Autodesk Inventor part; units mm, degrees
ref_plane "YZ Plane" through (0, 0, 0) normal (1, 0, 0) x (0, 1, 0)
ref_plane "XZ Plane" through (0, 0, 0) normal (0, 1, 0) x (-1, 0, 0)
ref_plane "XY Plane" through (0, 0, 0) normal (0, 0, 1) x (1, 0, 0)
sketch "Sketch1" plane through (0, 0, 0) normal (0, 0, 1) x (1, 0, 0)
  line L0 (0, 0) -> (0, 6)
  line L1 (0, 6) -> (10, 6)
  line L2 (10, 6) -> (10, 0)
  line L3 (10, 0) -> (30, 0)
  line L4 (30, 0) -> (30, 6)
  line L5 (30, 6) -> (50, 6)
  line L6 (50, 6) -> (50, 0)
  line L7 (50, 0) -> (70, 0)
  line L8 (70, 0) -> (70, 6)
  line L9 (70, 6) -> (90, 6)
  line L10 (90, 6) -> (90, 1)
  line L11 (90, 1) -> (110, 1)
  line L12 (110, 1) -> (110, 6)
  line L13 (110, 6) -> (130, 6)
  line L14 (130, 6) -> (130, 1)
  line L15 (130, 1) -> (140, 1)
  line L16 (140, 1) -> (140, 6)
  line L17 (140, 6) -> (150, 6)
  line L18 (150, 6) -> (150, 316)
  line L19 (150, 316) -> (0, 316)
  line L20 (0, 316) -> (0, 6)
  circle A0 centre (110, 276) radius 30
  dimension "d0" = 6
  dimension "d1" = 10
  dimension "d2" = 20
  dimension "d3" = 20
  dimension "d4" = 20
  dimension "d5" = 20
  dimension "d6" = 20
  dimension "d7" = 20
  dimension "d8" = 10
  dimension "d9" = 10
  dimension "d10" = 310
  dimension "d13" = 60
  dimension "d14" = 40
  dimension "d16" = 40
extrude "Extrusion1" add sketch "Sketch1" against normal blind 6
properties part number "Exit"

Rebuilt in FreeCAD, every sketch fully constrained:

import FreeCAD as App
import Part
import Sketcher
Q = App.Units.Quantity


def add_polygon(sketch, points):
    """Adds a closed chain of lines whose ends are joined by coincident constraints."""
    first, n = sketch.GeometryCount, len(points)
    for a, b in zip(points, points[1:] + points[:1]):
        sketch.addGeometry(Part.LineSegment(App.Vector(*a, 0), App.Vector(*b, 0)), False)
    for i in range(n):
        sketch.addConstraint(Sketcher.Constraint("Coincident", first + i, 2, first + (i + 1) % n, 1))

doc = App.newDocument("Part")
body = doc.addObject("PartDesign::Body", "Body")

# Sketch on XY plane
sketch1 = doc.addObject("Sketcher::SketchObject", "Sketch")
body.addObject(sketch1)
sketch1.AttachmentSupport = (doc.XY_Plane, [""])
sketch1.MapMode = "FlatFace"
add_polygon(sketch1, [(0, 316), (0, 6), (10, 6), (10, 0), (30, 0), (30, 6), (50, 6), (50, 0), (70, 0), (70, 6), (90, 6), (90, 1), (110, 1), (110, 6), (130, 6), (130, 1), (140, 1), (140, 6), (150, 6), (150, 316)])  # lines 0-19
sketch1.addGeometry(Part.Circle(App.Vector(110, 276, 0), App.Vector(0, 0, 1), 30), False)  # 20
sketch1.addConstraint(Sketcher.Constraint("Vertical", 0))
sketch1.addConstraint(Sketcher.Constraint("Horizontal", 1))
sketch1.addConstraint(Sketcher.Constraint("Vertical", 2))
sketch1.addConstraint(Sketcher.Constraint("Horizontal", 3))
sketch1.addConstraint(Sketcher.Constraint("Vertical", 4))
sketch1.addConstraint(Sketcher.Constraint("Horizontal", 5))
sketch1.addConstraint(Sketcher.Constraint("Vertical", 6))
sketch1.addConstraint(Sketcher.Constraint("Horizontal", 7))
sketch1.addConstraint(Sketcher.Constraint("Vertical", 8))
sketch1.addConstraint(Sketcher.Constraint("Horizontal", 9))
sketch1.addConstraint(Sketcher.Constraint("Vertical", 10))
sketch1.addConstraint(Sketcher.Constraint("Horizontal", 11))
sketch1.addConstraint(Sketcher.Constraint("Vertical", 12))
sketch1.addConstraint(Sketcher.Constraint("Horizontal", 13))
sketch1.addConstraint(Sketcher.Constraint("Vertical", 14))
sketch1.addConstraint(Sketcher.Constraint("Horizontal", 15))
sketch1.addConstraint(Sketcher.Constraint("Vertical", 16))
sketch1.addConstraint(Sketcher.Constraint("Horizontal", 17))
sketch1.addConstraint(Sketcher.Constraint("Vertical", 18))
sketch1.addConstraint(Sketcher.Constraint("Horizontal", 19))
sketch1.addConstraint(Sketcher.Constraint("PointOnObject", 0, 2, -2))
sketch1.addConstraint(Sketcher.Constraint("PointOnObject", 2, 2, -1))
sketch1.addConstraint(Sketcher.Constraint("PointOnObject", 6, 2, -1))
sketch1.addConstraint(Sketcher.Constraint("Horizontal", 1, 2, 4, 2))
sketch1.addConstraint(Sketcher.Constraint("Horizontal", 5, 2, 8, 2))
sketch1.addConstraint(Sketcher.Constraint("Horizontal", 9, 2, 12, 2))
sketch1.addConstraint(Sketcher.Constraint("Horizontal", 11, 2, 14, 2))
sketch1.addConstraint(Sketcher.Constraint("Horizontal", 13, 2, 16, 2))
sketch1.addConstraint(Sketcher.Constraint("Vertical", 20, 3, 11, 2))
sketch1.addConstraint(Sketcher.Constraint("Equal", 3, 5))
sketch1.addConstraint(Sketcher.Constraint("Equal", 5, 7))
sketch1.addConstraint(Sketcher.Constraint("Equal", 7, 9))
sketch1.addConstraint(Sketcher.Constraint("Equal", 9, 11))
sketch1.addConstraint(Sketcher.Constraint("Equal", 11, 13))
sketch1.addConstraint(Sketcher.Constraint("Equal", 1, 15))
sketch1.addConstraint(Sketcher.Constraint("Equal", 15, 17))
sketch1.addConstraint(Sketcher.Constraint("Diameter", 20, Q("60 mm")))
sketch1.addConstraint(Sketcher.Constraint("DistanceX", 1, 1, 1, 2, Q("10 mm")))
sketch1.addConstraint(Sketcher.Constraint("DistanceX", 3, 1, 3, 2, Q("20 mm")))
sketch1.addConstraint(Sketcher.Constraint("DistanceY", 0, 2, 0, 1, Q("310 mm")))
sketch1.addConstraint(Sketcher.Constraint("DistanceY", 2, 2, 2, 1, Q("6 mm")))
sketch1.addConstraint(Sketcher.Constraint("DistanceY", 20, 3, 18, 2, Q("40 mm")))
sketch1.addConstraint(Sketcher.Constraint("DistanceY", 10, 2, 10, 1, Q("5 mm")))
pad1 = doc.addObject("PartDesign::Pad", "Pad")
body.addObject(pad1)
pad1.Profile = sketch1
pad1.Length = 6
pad1.Reversed = True

doc.recompute()
